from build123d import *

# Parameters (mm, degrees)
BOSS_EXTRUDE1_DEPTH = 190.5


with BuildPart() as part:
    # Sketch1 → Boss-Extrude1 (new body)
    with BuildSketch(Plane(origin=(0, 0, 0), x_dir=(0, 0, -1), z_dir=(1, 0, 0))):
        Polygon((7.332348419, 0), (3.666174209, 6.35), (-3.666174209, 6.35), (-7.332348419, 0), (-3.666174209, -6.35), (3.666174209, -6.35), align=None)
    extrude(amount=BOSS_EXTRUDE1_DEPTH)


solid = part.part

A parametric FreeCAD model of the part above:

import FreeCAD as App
import Part
import Sketcher
from FreeCAD import Vector
Q = App.Units.Quantity


def add_polygon(sketch, points):
    """Adds a closed chain of lines whose ends are joined by coincident constraints."""
    first, n = sketch.GeometryCount, len(points)
    for a, b in zip(points, points[1:] + points[:1]):
        sketch.addGeometry(Part.LineSegment(App.Vector(*a, 0), App.Vector(*b, 0)), False)
    for i in range(n):
        sketch.addConstraint(Sketcher.Constraint("Coincident", first + i, 2, first + (i + 1) % n, 1))

doc = App.newDocument("Part")
params = doc.addObject("Spreadsheet::Sheet", "Params")
for row, (alias, value) in enumerate([
    ("pad1_length", "7.5 in"),
], start=1):
    params.set(f"A{row}", alias)
    params.set(f"B{row}", "=" + value)
    params.setAlias(f"B{row}", alias)

body = doc.addObject("PartDesign::Body", "Body")

sketch1 = body.newObject("Sketcher::SketchObject", "Sketch")
sketch1.AttachmentSupport = (doc.getObject("YZ_Plane"), [""])
sketch1.MapMode = "FlatFace"
add_polygon(sketch1, [(0, -7), (6, -4), (6, 4), (0, 7), (-6, 4), (-6, -4)])
sketch1.addConstraint([
    Sketcher.Constraint("Vertical", 1),
    Sketcher.Constraint("Vertical", 4),
    Sketcher.Constraint("Symmetric", 0, 2, 3, 2, -1, 1),
    Sketcher.Constraint("Symmetric", 2, 2, 5, 2, -1, 1),
    Sketcher.Constraint("PointOnObject", 2, 2, -2),
    Sketcher.Constraint("Parallel", 2, 5),
    Sketcher.Constraint("Horizontal", 1, 2, 3, 2),
    Sketcher.Constraint("Angle", 0, Q("30 deg")),
    Sketcher.Constraint("DistanceX", 3, 2, 1, 2, Q("0.5 in")),
    Sketcher.Constraint("DistanceY", 1, 1, 1, 2, 7.332348),
])
pad1 = body.newObject("PartDesign::Pad", "Pad")
pad1.Profile = sketch1
pad1.setExpression("Length", "Params.pad1_length")

doc.recompute()
